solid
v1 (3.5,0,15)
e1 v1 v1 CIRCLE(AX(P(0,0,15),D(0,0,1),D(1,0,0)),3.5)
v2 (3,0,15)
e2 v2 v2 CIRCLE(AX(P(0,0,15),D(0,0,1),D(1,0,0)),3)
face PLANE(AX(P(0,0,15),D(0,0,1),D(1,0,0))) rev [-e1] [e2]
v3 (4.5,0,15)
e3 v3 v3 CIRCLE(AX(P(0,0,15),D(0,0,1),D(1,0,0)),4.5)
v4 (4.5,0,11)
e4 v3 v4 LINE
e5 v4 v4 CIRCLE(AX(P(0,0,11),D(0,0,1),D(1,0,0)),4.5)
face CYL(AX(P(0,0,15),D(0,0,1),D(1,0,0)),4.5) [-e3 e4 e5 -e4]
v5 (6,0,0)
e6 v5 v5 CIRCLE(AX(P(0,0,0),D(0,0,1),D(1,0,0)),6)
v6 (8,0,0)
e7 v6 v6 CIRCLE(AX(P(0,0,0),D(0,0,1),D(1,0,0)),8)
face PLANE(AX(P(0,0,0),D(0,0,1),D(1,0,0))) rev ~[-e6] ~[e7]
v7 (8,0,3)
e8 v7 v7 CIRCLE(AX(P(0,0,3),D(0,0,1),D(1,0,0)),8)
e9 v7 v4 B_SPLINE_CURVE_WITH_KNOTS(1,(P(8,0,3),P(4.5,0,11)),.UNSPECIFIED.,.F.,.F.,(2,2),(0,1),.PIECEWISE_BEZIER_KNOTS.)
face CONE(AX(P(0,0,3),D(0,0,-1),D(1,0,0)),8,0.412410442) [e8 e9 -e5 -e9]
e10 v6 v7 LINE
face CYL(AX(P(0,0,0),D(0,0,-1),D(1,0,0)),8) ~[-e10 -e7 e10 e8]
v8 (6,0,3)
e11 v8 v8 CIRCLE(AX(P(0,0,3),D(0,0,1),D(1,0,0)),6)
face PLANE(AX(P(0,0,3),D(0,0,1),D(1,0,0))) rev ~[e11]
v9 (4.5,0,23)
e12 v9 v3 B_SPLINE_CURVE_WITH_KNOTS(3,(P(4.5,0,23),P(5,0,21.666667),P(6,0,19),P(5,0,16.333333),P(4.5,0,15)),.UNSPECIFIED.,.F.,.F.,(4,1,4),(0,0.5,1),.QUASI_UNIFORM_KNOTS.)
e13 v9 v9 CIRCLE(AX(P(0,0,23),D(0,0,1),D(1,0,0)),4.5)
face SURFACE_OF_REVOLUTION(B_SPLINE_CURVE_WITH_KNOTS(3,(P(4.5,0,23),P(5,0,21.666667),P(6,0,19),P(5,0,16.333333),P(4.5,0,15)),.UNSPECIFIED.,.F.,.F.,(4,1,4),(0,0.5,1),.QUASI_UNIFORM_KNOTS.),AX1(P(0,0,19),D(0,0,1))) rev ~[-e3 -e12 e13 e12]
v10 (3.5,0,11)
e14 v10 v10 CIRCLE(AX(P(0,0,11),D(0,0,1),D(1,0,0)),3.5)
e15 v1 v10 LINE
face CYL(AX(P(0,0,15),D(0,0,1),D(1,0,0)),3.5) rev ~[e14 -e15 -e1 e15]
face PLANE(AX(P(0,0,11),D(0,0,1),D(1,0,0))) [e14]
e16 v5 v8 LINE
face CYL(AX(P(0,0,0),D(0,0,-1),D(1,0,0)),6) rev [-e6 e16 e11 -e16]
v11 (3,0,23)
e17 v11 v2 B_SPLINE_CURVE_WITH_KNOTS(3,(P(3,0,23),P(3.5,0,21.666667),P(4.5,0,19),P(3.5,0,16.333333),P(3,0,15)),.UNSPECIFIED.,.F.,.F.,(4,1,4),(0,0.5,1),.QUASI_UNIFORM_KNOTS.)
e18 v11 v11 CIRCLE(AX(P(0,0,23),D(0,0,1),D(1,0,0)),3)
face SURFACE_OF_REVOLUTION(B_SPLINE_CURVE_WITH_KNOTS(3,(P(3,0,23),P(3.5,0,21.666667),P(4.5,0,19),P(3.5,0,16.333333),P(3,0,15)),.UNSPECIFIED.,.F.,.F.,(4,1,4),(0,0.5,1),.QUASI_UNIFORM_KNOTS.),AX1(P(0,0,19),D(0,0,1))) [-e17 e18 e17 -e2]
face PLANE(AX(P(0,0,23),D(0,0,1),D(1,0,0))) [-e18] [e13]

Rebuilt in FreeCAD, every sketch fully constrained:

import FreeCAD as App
import Part
import Sketcher

doc = App.newDocument("Part")
body = doc.addObject("PartDesign::Body", "Body")

sketch1 = doc.addObject("Sketcher::SketchObject", "Sketch")
body.addObject(sketch1)
sketch1.AttachmentSupport = (doc.XZ_Plane, [""])
sketch1.MapMode = "FlatFace"
sketch1.addGeometry(Part.LineSegment(App.Vector(4.5, 23, 0), App.Vector(3, 23, 0)), False)
sketch1.addGeometry(Part.BSplineCurve([App.Vector(3, 23, 0), App.Vector(3.5, 21.666667, 0), App.Vector(4.5, 19, 0), App.Vector(3.5, 16.333333, 0), App.Vector(3, 15, 0)], [4, 1, 4], [0, 0.5, 1], False, 3, [1, 1, 1, 1, 1], False), False)
sketch1.addGeometry(Part.LineSegment(App.Vector(3, 15, 0), App.Vector(4.5, 15, 0)), False)
sketch1.addGeometry(Part.BSplineCurve([App.Vector(4.5, 23, 0), App.Vector(5, 21.666667, 0), App.Vector(6, 19, 0), App.Vector(5, 16.333333, 0), App.Vector(4.5, 15, 0)], [4, 1, 4], [0, 0.5, 1], False, 3, [1, 1, 1, 1, 1], False), False)
sketch1.addConstraint(Sketcher.Constraint("Block", 1))
sketch1.addConstraint(Sketcher.Constraint("Block", 3))
sketch1.addConstraint(Sketcher.Constraint("Coincident", 0, 2, 1, 1))
sketch1.addConstraint(Sketcher.Constraint("Coincident", 1, 2, 2, 1))
sketch1.addConstraint(Sketcher.Constraint("Coincident", 2, 2, 3, 2))
sketch1.addConstraint(Sketcher.Constraint("Coincident", 3, 1, 0, 1))
revolution = doc.addObject("PartDesign::Revolution", "Revolution")
body.addObject(revolution)
revolution.Profile = sketch1
revolution.ReferenceAxis = (sketch1, ["V_Axis"])
revolution.Angle = 360

sketch2 = doc.addObject("Sketcher::SketchObject", "Sketch001")
body.addObject(sketch2)
sketch2.AttachmentSupport = (doc.XY_Plane, [""])
sketch2.MapMode = "FlatFace"
sketch2.AttachmentOffset = App.Placement(App.Vector(0, 0, 15), App.Rotation())
sketch2.addGeometry(Part.Circle(App.Vector(0, 0, 0), App.Vector(0, 0, 1), 4.5), False)
sketch2.addGeometry(Part.Circle(App.Vector(0, 0, 0), App.Vector(0, 0, 1), 3.5), False)
sketch2.addConstraint(Sketcher.Constraint("Coincident", 0, 3, -1, 1))
sketch2.addConstraint(Sketcher.Constraint("Coincident", 1, 3, -1, 1))
sketch2.addConstraint(Sketcher.Constraint("Diameter", 0, 9.0))
sketch2.addConstraint(Sketcher.Constraint("Diameter", 1, 7.0))
pad1 = doc.addObject("PartDesign::Pad", "Pad")
body.addObject(pad1)
pad1.Profile = sketch2
pad1.Length = 4
pad1.Reversed = True
body2 = doc.addObject("PartDesign::Body", "Body001")

sketch3 = doc.addObject("Sketcher::SketchObject", "Sketch002")
body2.addObject(sketch3)
sketch3.AttachmentSupport = (doc.getObject("XY_Plane001"), [""])
sketch3.MapMode = "FlatFace"
sketch3.addGeometry(Part.Circle(App.Vector(0, 0, 0), App.Vector(0, 0, 1), 8), False)
sketch3.addGeometry(Part.Circle(App.Vector(0, 0, 0), App.Vector(0, 0, 1), 6), False)
sketch3.addConstraint(Sketcher.Constraint("Coincident", 0, 3, -1, 1))
sketch3.addConstraint(Sketcher.Constraint("Coincident", 1, 3, -1, 1))
sketch3.addConstraint(Sketcher.Constraint("Diameter", 0, 16.0))
sketch3.addConstraint(Sketcher.Constraint("Diameter", 1, 12.0))
pad2 = doc.addObject("PartDesign::Pad", "Pad001")
body2.addObject(pad2)
pad2.Profile = sketch3
pad2.Length = 3
body.AllowCompound = True
doc.recompute()

boolean = doc.addObject("PartDesign::Boolean", "Boolean")
body.addObject(boolean)
boolean.Type = "Fuse"
boolean.addObjects([body2])

sketch4 = doc.addObject("Sketcher::SketchObject", "Sketch003")
body.addObject(sketch4)
sketch4.AttachmentSupport = (doc.XY_Plane, [""])
sketch4.MapMode = "FlatFace"
sketch4.AttachmentOffset = App.Placement(App.Vector(0, 0, 3), App.Rotation())
sketch4.addGeometry(Part.Circle(App.Vector(0, 0, 0), App.Vector(0, 0, 1), 8), False)
sketch4.addConstraint(Sketcher.Constraint("Coincident", 0, 3, -1, 1))
sketch4.addConstraint(Sketcher.Constraint("Diameter", 0, 16.0))

sketch5 = doc.addObject("Sketcher::SketchObject", "Sketch004")
body.addObject(sketch5)
sketch5.AttachmentSupport = (doc.XY_Plane, [""])
sketch5.MapMode = "FlatFace"
sketch5.AttachmentOffset = App.Placement(App.Vector(0, 0, 11), App.Rotation())
sketch5.addGeometry(Part.Circle(App.Vector(0, 0, 0), App.Vector(0, 0, 1), 4.5), False)
sketch5.addConstraint(Sketcher.Constraint("Coincident", 0, 3, -1, 1))
sketch5.addConstraint(Sketcher.Constraint("Diameter", 0, 9.0))

additiveloft = doc.addObject("PartDesign::AdditiveLoft", "AdditiveLoft")
body.addObject(additiveloft)
additiveloft.Profile = sketch4
additiveloft.Sections = [sketch5]

doc.recompute()
